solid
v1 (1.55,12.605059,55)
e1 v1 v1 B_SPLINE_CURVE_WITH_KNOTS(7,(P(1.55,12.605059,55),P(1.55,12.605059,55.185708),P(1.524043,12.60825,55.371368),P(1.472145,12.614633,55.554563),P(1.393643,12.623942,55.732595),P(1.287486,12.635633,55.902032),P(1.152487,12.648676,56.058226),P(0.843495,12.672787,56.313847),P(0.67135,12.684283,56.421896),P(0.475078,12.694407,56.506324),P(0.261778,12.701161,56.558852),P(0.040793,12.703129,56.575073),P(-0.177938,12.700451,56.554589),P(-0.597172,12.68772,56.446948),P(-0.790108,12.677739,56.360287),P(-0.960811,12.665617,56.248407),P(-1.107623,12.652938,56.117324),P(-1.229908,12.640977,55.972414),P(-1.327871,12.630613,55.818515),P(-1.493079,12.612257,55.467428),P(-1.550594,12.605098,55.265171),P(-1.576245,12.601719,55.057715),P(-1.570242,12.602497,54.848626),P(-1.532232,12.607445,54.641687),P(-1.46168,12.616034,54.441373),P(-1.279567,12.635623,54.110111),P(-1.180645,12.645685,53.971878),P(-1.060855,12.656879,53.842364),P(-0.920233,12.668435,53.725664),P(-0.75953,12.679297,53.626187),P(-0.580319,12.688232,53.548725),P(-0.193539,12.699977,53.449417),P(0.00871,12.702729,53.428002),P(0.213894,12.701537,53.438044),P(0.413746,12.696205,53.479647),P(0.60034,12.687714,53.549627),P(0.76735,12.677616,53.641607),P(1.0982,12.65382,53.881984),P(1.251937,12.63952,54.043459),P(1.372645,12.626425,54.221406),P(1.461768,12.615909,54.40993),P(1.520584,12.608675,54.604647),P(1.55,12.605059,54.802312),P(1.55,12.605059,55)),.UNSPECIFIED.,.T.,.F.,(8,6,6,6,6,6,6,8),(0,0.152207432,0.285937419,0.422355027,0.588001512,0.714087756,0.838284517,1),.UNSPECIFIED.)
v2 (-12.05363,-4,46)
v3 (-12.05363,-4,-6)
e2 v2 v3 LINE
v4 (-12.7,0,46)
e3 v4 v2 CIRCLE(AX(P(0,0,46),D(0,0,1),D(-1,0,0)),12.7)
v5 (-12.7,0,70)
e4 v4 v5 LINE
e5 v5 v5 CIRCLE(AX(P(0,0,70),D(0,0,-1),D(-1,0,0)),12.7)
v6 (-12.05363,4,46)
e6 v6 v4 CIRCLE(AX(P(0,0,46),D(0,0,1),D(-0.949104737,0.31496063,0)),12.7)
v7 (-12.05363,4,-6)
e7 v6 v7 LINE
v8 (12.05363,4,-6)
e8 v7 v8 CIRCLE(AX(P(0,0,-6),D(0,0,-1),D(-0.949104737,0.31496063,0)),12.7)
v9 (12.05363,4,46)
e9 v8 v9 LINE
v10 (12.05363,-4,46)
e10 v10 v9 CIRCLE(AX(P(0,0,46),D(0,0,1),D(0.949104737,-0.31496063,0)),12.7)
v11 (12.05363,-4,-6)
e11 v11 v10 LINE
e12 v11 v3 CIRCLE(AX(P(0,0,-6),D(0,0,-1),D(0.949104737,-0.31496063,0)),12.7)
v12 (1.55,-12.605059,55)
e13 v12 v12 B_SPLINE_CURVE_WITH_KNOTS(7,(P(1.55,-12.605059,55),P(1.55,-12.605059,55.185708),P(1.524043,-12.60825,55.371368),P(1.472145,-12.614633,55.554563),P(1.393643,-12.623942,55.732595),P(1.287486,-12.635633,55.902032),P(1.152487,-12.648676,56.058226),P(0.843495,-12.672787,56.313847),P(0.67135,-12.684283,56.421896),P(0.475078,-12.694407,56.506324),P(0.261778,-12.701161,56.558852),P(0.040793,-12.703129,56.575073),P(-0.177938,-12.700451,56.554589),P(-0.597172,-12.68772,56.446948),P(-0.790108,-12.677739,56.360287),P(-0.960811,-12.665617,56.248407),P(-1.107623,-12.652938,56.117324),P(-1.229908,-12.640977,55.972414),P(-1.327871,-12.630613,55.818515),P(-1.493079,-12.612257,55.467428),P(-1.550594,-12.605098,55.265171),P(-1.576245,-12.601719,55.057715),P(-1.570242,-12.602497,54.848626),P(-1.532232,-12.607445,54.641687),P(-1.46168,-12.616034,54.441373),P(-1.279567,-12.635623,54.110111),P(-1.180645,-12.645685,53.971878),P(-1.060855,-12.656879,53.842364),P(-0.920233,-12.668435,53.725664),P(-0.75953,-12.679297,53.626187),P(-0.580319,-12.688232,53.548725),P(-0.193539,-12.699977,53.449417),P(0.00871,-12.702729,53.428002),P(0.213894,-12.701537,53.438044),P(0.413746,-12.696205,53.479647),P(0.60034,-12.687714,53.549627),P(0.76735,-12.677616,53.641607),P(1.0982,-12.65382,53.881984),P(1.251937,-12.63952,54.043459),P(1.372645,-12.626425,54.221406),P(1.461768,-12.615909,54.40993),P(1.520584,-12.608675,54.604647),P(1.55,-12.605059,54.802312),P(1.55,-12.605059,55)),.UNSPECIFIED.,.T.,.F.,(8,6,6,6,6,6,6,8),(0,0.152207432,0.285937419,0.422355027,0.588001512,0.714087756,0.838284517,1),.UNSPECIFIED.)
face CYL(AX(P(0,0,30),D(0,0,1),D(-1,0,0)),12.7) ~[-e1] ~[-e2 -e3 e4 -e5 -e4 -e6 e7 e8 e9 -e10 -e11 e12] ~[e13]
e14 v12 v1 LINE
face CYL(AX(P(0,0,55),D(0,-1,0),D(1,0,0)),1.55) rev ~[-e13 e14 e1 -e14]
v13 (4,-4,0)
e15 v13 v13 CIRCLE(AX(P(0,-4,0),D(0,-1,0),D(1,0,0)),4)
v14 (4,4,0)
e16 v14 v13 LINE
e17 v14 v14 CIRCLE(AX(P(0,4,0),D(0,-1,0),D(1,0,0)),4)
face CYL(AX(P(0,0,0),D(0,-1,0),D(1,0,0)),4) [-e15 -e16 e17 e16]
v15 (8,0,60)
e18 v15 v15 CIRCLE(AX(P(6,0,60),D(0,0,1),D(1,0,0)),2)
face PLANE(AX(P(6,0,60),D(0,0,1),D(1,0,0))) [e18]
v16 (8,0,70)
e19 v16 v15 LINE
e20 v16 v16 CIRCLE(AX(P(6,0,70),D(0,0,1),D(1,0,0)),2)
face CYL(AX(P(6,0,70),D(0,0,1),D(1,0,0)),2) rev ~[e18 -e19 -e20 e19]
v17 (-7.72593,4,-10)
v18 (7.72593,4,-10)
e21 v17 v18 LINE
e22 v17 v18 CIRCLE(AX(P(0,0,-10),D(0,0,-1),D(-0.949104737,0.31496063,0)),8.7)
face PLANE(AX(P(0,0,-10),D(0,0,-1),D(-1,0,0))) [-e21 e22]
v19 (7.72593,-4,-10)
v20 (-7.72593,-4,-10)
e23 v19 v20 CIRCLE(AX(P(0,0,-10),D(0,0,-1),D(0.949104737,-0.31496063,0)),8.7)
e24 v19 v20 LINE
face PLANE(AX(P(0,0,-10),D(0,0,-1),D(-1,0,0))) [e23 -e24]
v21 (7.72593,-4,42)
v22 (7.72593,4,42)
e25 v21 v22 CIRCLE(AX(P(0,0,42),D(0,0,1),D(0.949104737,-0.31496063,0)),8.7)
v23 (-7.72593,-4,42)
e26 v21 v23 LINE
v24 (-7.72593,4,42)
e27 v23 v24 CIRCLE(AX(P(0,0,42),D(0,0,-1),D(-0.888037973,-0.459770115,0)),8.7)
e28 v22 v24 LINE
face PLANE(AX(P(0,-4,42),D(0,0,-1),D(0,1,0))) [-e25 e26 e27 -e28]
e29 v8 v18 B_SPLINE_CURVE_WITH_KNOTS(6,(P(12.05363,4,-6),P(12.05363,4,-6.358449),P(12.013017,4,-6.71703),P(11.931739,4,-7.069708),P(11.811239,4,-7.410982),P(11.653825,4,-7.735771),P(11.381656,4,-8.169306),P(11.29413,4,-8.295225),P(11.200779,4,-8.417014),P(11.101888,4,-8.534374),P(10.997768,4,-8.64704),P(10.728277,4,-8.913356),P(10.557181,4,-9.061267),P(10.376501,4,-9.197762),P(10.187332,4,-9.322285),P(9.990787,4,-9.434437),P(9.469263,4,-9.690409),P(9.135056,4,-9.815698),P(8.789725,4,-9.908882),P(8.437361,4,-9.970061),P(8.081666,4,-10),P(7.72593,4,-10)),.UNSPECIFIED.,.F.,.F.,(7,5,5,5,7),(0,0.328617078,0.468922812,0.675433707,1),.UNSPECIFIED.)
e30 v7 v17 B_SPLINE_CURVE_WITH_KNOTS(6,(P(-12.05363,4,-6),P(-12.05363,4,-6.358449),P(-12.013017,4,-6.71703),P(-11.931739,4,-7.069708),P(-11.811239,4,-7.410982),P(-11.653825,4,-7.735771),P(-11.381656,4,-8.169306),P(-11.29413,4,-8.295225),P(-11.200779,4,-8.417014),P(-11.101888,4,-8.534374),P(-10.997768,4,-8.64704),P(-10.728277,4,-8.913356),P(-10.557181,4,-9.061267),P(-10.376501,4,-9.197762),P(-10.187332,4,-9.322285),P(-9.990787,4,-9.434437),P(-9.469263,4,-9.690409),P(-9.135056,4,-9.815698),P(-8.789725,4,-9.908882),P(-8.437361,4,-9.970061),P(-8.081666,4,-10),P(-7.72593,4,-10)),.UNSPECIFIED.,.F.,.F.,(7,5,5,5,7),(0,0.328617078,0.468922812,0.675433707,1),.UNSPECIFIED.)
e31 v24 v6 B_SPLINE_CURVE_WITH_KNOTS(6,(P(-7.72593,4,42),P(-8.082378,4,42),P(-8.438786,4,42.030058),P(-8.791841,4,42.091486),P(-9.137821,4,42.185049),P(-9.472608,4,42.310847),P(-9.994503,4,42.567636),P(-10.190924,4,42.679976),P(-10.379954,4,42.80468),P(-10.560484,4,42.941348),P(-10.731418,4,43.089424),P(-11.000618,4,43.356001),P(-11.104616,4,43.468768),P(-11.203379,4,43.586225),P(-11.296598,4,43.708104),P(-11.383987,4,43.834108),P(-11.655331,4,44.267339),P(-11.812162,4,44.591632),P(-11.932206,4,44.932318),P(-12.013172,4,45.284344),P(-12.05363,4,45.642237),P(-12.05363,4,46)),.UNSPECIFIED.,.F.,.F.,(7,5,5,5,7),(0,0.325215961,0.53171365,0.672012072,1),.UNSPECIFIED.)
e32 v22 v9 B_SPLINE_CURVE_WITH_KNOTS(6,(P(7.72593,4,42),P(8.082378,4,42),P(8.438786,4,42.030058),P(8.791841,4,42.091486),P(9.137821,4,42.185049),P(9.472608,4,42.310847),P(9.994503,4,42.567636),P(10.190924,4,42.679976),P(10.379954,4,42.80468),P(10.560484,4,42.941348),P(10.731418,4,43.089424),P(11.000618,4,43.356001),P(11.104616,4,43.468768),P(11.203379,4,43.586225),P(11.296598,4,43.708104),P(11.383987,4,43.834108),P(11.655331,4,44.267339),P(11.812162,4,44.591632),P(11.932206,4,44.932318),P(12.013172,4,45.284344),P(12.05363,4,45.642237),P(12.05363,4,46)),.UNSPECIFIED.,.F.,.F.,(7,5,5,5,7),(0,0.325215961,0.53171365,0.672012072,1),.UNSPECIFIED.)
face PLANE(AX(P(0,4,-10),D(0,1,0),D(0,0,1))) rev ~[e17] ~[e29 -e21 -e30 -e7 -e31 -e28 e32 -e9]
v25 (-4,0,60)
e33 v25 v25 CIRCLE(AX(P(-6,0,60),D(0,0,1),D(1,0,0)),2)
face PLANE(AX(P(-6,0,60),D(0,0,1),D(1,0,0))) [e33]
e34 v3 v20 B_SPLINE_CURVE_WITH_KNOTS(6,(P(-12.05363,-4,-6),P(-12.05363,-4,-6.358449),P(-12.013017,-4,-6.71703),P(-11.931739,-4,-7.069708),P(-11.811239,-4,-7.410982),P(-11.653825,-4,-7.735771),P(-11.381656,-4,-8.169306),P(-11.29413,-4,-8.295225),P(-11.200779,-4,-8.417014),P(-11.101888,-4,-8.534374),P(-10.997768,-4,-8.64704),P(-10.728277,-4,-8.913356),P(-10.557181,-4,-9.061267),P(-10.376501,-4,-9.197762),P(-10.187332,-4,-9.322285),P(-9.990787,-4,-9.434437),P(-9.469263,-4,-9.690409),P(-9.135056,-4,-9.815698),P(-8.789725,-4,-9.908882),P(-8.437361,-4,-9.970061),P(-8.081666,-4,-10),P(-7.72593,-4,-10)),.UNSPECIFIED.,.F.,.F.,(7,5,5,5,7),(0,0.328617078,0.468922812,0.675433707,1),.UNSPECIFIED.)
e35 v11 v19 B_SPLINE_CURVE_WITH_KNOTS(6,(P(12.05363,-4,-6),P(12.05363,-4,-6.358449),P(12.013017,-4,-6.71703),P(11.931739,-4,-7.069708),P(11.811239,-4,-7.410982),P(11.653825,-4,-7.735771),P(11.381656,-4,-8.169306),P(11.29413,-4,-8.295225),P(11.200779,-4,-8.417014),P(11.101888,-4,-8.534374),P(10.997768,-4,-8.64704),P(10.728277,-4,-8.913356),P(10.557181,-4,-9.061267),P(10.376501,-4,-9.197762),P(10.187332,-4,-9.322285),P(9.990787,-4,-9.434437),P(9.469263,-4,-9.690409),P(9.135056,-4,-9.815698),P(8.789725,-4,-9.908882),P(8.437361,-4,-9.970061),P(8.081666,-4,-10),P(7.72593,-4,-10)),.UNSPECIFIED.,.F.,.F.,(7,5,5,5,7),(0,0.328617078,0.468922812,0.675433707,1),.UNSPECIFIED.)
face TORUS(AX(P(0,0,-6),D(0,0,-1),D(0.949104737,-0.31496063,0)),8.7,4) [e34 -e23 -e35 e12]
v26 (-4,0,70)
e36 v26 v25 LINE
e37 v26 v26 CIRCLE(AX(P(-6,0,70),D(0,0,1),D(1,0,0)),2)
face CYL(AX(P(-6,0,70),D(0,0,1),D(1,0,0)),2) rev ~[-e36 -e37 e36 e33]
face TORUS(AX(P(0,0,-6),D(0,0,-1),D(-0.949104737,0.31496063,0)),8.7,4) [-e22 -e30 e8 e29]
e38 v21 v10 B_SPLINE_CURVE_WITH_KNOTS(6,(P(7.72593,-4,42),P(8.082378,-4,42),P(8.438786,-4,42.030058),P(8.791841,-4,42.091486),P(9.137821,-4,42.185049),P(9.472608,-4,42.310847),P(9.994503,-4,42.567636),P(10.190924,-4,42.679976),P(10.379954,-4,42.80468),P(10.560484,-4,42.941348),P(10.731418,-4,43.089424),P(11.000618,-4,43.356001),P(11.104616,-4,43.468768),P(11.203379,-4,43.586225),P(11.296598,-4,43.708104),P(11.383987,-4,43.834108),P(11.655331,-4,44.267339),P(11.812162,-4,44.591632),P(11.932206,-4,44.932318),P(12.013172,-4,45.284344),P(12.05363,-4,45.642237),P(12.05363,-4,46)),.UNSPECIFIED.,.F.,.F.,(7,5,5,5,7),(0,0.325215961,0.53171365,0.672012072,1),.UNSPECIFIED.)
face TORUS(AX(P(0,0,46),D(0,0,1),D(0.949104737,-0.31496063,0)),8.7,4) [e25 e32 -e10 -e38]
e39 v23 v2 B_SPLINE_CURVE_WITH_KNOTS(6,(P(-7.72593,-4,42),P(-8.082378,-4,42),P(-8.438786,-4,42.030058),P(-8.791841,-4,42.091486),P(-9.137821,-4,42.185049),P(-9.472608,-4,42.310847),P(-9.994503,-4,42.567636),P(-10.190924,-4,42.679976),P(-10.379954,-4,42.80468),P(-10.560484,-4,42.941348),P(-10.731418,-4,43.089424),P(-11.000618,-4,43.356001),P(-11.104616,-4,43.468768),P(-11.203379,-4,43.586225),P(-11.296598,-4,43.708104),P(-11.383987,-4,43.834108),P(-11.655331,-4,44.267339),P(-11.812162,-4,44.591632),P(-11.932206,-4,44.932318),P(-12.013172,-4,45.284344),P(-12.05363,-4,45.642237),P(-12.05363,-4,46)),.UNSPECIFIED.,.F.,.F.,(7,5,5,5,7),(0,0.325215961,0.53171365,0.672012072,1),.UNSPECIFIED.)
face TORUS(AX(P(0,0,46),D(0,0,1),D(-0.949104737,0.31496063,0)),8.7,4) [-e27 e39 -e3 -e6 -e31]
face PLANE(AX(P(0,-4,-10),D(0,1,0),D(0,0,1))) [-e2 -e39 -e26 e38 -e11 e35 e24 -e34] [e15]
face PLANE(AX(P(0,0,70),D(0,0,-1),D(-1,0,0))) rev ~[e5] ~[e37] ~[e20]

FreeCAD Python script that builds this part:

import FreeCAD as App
import Part
import Sketcher
from FreeCAD import Vector
Q = App.Units.Quantity


def edges_at(feature, points):
    """Names of the edges that pass closest to the given points."""
    edges = feature.Shape.Edges
    near = lambda p: min(range(len(edges)), key=lambda i: edges[i].distToShape(Part.Vertex(*p))[0])
    return sorted({f"Edge{near(p) + 1}" for p in points})

doc = App.newDocument("Part")
body = doc.addObject("PartDesign::Body", "Body")

# Sketch on XZ plane
sketch1 = body.newObject("Sketcher::SketchObject", "Sketch")
sketch1.AttachmentSupport = (doc.getObject("XZ_Plane"), [""])
sketch1.MapMode = "FlatFace"
sketch1.addGeometry([
    Part.LineSegment(Vector(-13, 70, 0), Vector(-13, -10, 0)),
    Part.LineSegment(Vector(-13, -10, 0), Vector(0, -10, 0)),
    Part.LineSegment(Vector(0, -10, 0), Vector(0, 70, 0)),
    Part.LineSegment(Vector(0, 70, 0), Vector(-13, 70, 0)),
], False)
sketch1.addConstraint([
    Sketcher.Constraint("Coincident", 0, 2, 1, 1),
    Sketcher.Constraint("Coincident", 1, 2, 2, 1),
    Sketcher.Constraint("Coincident", 2, 2, 3, 1),
    Sketcher.Constraint("Coincident", 3, 2, 0, 1),
    Sketcher.Constraint("Vertical", 0),
    Sketcher.Constraint("Horizontal", 1),
    Sketcher.Constraint("Vertical", 2),
    Sketcher.Constraint("Horizontal", 3),
    Sketcher.Constraint("PointOnObject", 1, 2, -2),
    Sketcher.Constraint("DistanceY", 0, 2, 0, 1, Q("80 mm")),
    Sketcher.Constraint("DistanceX", 1, 1, 1, 2, Q("12.7 mm")),
    Sketcher.Constraint("DistanceY", 0, 2, -1, 1, Q("10 mm")),
])
revolution = body.newObject("PartDesign::Revolution", "Revolution")
revolution.Profile = sketch1
revolution.ReferenceAxis = (sketch1, ["V_Axis"])
revolution.Angle = 360

# Sketch on YZ plane
sketch2 = body.newObject("Sketcher::SketchObject", "Sketch001")
sketch2.AttachmentSupport = (doc.getObject("YZ_Plane"), [""])
sketch2.MapMode = "FlatFace"
sketch2.addGeometry([
    Part.LineSegment(Vector(-4, 42, 0), Vector(-4, -10, 0)),
    Part.LineSegment(Vector(-4, -10, 0), Vector(4, -10, 0)),
    Part.LineSegment(Vector(4, -10, 0), Vector(4, 42, 0)),
    Part.LineSegment(Vector(4, 42, 0), Vector(-4, 42, 0)),
], False)
sketch2.addConstraint([
    Sketcher.Constraint("Coincident", 0, 2, 1, 1),
    Sketcher.Constraint("Coincident", 1, 2, 2, 1),
    Sketcher.Constraint("Coincident", 2, 2, 3, 1),
    Sketcher.Constraint("Coincident", 3, 2, 0, 1),
    Sketcher.Constraint("Vertical", 0),
    Sketcher.Constraint("Horizontal", 1),
    Sketcher.Constraint("Vertical", 2),
    Sketcher.Constraint("Horizontal", 3),
    Sketcher.Constraint("DistanceX", 1, 1, 1, 2, Q("8 mm")),
    Sketcher.Constraint("DistanceY", 0, 2, 0, 1, Q("52 mm")),
    Sketcher.Constraint("DistanceX", 0, 2, -1, 1, Q("4 mm")),
    Sketcher.Constraint("DistanceY", 0, 2, -1, 1, Q("10 mm")),
])
pocket1 = body.newObject("PartDesign::Pocket", "Pocket")
pocket1.Profile = sketch2
pocket1.Type = "ThroughAll"
pocket1.Midplane = True

# Sketch on XZ plane
sketch3 = body.newObject("Sketcher::SketchObject", "Sketch002")
sketch3.AttachmentSupport = (doc.getObject("XZ_Plane"), [""])
sketch3.MapMode = "FlatFace"
sketch3.addGeometry(Part.Circle(Vector(0, 0, 0), Vector(0, 0, 1), 4), False)
sketch3.addConstraint([
    Sketcher.Constraint("Coincident", 0, 3, -1, 1),
    Sketcher.Constraint("Diameter", 0, Q("8 mm")),
])
pad1 = body.newObject("PartDesign::Pad", "Pad")
pad1.Profile = sketch3
pad1.Length = 10
pad1.Midplane = True

# Sketch on XY plane
sketch4 = body.newObject("Sketcher::SketchObject", "Sketch003")
sketch4.AttachmentSupport = (doc.getObject("XY_Plane"), [""])
sketch4.MapMode = "FlatFace"
sketch4.AttachmentOffset = App.Placement(Vector(0, 0, 70), App.Rotation())
sketch4.addGeometry([
    Part.Circle(Vector(-6, 0, 0), Vector(0, 0, 1), 2),
    Part.Circle(Vector(6, 0, 0), Vector(0, 0, 1), 2),
], False)
sketch4.addConstraint([
    Sketcher.Constraint("Equal", 0, 1),
    Sketcher.Constraint("Symmetric", 0, 3, 1, 3, -1, 1),
    Sketcher.Constraint("PointOnObject", 0, 3, -1),
    Sketcher.Constraint("Diameter", 0, Q("4 mm")),
    Sketcher.Constraint("DistanceX", 0, 3, -1, 1, Q("6 mm")),
])
pocket2 = body.newObject("PartDesign::Pocket", "Pocket001")
pocket2.Profile = sketch4
pocket2.Length = 10
doc.recompute()

fillet = body.newObject("PartDesign::Fillet", "Fillet")
fillet.Base = (pocket2, edges_at(pocket2, [
    (-12.537, 2.026, 42),
    (12.7, 0, 42),
    (-12.537, -2.026, 42),
    (0, -12.7, -10),
    (0, 12.7, -10),
]))
fillet.Radius = 4

# Sketch on XZ plane
sketch5 = body.newObject("Sketcher::SketchObject", "Sketch004")
sketch5.AttachmentSupport = (doc.getObject("XZ_Plane"), [""])
sketch5.MapMode = "FlatFace"
sketch5.addGeometry(Part.Circle(Vector(0, 55, 0), Vector(0, 0, 1), 1.6), False)
sketch5.addConstraint([
    Sketcher.Constraint("PointOnObject", 0, 3, -2),
    Sketcher.Constraint("Diameter", 0, Q("3.1 mm")),
    Sketcher.Constraint("DistanceY", -1, 1, 0, 3, Q("55 mm")),
])
pocket3 = body.newObject("PartDesign::Pocket", "Pocket002")
pocket3.Profile = sketch5
pocket3.Type = "ThroughAll"
pocket3.Midplane = True

doc.recompute()
